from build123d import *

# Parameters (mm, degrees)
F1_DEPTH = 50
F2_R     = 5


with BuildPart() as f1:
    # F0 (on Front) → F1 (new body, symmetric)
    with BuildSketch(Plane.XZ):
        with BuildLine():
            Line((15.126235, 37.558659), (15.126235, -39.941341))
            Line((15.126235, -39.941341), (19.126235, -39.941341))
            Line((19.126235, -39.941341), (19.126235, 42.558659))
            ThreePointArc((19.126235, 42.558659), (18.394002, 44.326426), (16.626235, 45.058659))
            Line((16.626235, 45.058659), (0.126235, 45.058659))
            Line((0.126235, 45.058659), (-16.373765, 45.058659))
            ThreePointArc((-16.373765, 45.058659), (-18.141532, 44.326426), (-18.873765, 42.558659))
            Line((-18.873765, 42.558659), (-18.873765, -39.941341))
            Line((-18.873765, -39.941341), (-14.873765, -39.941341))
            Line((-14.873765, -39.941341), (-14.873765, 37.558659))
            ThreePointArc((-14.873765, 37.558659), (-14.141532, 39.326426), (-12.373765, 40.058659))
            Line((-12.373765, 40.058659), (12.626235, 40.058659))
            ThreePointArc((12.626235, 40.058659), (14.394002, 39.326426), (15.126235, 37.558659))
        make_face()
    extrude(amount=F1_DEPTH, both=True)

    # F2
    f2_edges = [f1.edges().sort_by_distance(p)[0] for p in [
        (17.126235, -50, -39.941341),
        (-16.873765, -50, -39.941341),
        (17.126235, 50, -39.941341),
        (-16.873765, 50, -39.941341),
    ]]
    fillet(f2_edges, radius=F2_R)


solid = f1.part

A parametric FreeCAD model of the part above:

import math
import FreeCAD as App
import Part
import Sketcher
Q = App.Units.Quantity


def edges_at(feature, points):
    """Names of the edges that pass closest to the given points."""
    edges = feature.Shape.Edges
    near = lambda p: min(range(len(edges)), key=lambda i: edges[i].distToShape(Part.Vertex(*p))[0])
    return sorted({f"Edge{near(p) + 1}" for p in points})

doc = App.newDocument("Part")
body = doc.addObject("PartDesign::Body", "Body")

# Sketch on XZ plane
sketch1 = doc.addObject("Sketcher::SketchObject", "Sketch")
body.addObject(sketch1)
sketch1.AttachmentSupport = (doc.XZ_Plane, [""])
sketch1.MapMode = "FlatFace"
sketch1.addGeometry(Part.LineSegment(App.Vector(15.1, 37.6, 0), App.Vector(15.1, -39.9, 0)), False)
sketch1.addGeometry(Part.LineSegment(App.Vector(15.1, -39.9, 0), App.Vector(19.1, -39.9, 0)), False)
sketch1.addGeometry(Part.LineSegment(App.Vector(19.1, -39.9, 0), App.Vector(19.1, 42.6, 0)), False)
sketch1.addGeometry(Part.ArcOfCircle(Part.Circle(App.Vector(16.6, 42.6, 0), App.Vector(0, 0, 1), 2.5), math.radians(0), math.radians(90)), False)
sketch1.addGeometry(Part.LineSegment(App.Vector(16.6, 45.1, 0), App.Vector(-16.4, 45.1, 0)), False)
sketch1.addGeometry(Part.ArcOfCircle(Part.Circle(App.Vector(-16.4, 42.6, 0), App.Vector(0, 0, 1), 2.5), math.radians(90), math.radians(180)), False)
sketch1.addGeometry(Part.LineSegment(App.Vector(-18.9, 42.6, 0), App.Vector(-18.9, -39.9, 0)), False)
sketch1.addGeometry(Part.LineSegment(App.Vector(-18.9, -39.9, 0), App.Vector(-14.9, -39.9, 0)), False)
sketch1.addGeometry(Part.LineSegment(App.Vector(-14.9, -39.9, 0), App.Vector(-14.9, 37.6, 0)), False)
sketch1.addGeometry(Part.ArcOfCircle(Part.Circle(App.Vector(-12.4, 37.6, 0), App.Vector(0, 0, 1), 2.5), math.radians(90), math.radians(180)), False)
sketch1.addGeometry(Part.LineSegment(App.Vector(-12.4, 40.1, 0), App.Vector(12.6, 40.1, 0)), False)
sketch1.addGeometry(Part.ArcOfCircle(Part.Circle(App.Vector(12.6, 37.6, 0), App.Vector(0, 0, 1), 2.5), math.radians(0), math.radians(90)), False)
sketch1.addConstraint(Sketcher.Constraint("Coincident", 0, 2, 1, 1))
sketch1.addConstraint(Sketcher.Constraint("Coincident", 1, 2, 2, 1))
sketch1.addConstraint(Sketcher.Constraint("Tangent", 2, 2, 3, 1))
sketch1.addConstraint(Sketcher.Constraint("Tangent", 3, 2, 4, 1))
sketch1.addConstraint(Sketcher.Constraint("Tangent", 4, 2, 5, 1))
sketch1.addConstraint(Sketcher.Constraint("Tangent", 5, 2, 6, 1))
sketch1.addConstraint(Sketcher.Constraint("Coincident", 6, 2, 7, 1))
sketch1.addConstraint(Sketcher.Constraint("Coincident", 7, 2, 8, 1))
sketch1.addConstraint(Sketcher.Constraint("Tangent", 8, 2, 9, 2))
sketch1.addConstraint(Sketcher.Constraint("Tangent", 9, 1, 10, 1))
sketch1.addConstraint(Sketcher.Constraint("Tangent", 10, 2, 11, 2))
sketch1.addConstraint(Sketcher.Constraint("Tangent", 11, 1, 0, 1))
sketch1.addConstraint(Sketcher.Constraint("Vertical", 0))
sketch1.addConstraint(Sketcher.Constraint("Horizontal", 1))
sketch1.addConstraint(Sketcher.Constraint("Vertical", 2))
sketch1.addConstraint(Sketcher.Constraint("Horizontal", 4))
sketch1.addConstraint(Sketcher.Constraint("Vertical", 6))
sketch1.addConstraint(Sketcher.Constraint("Horizontal", 7))
sketch1.addConstraint(Sketcher.Constraint("Vertical", 8))
sketch1.addConstraint(Sketcher.Constraint("Horizontal", 10))
sketch1.addConstraint(Sketcher.Constraint("Equal", 3, 5))
sketch1.addConstraint(Sketcher.Constraint("Equal", 5, 9))
sketch1.addConstraint(Sketcher.Constraint("Equal", 9, 11))
sketch1.addConstraint(Sketcher.Constraint("Horizontal", 1, 2, 6, 2))
sketch1.addConstraint(Sketcher.Constraint("Equal", 1, 7))
sketch1.addConstraint(Sketcher.Constraint("Radius", 3, Q("2.5 mm")))
sketch1.addConstraint(Sketcher.Constraint("DistanceX", 1, 1, 1, 2, Q("4 mm")))
sketch1.addConstraint(Sketcher.Constraint("DistanceX", 4, 2, 4, 1, Q("33 mm")))
sketch1.addConstraint(Sketcher.Constraint("DistanceY", 0, 2, 0, 1, Q("77.5 mm")))
sketch1.addConstraint(Sketcher.Constraint("DistanceY", 2, 1, 2, 2, Q("82.5 mm")))
sketch1.addConstraint(Sketcher.Constraint("DistanceY", -1, 1, 3, 3, Q("42.558659 mm")))
sketch1.addConstraint(Sketcher.Constraint("DistanceX", -1, 1, 3, 3, Q("16.626235 mm")))
pad1 = doc.addObject("PartDesign::Pad", "Pad")
body.addObject(pad1)
pad1.Profile = sketch1
pad1.Length = 100
pad1.Midplane = True
doc.recompute()

fillet = doc.addObject("PartDesign::Fillet", "Fillet")
body.addObject(fillet)
fillet.Base = (pad1, edges_at(pad1, [
    (17.126, -50, -39.941),
    (-16.874, -50, -39.941),
    (17.126, 50, -39.941),
    (-16.874, 50, -39.941),
]))
fillet.Radius = 5

doc.recompute()
